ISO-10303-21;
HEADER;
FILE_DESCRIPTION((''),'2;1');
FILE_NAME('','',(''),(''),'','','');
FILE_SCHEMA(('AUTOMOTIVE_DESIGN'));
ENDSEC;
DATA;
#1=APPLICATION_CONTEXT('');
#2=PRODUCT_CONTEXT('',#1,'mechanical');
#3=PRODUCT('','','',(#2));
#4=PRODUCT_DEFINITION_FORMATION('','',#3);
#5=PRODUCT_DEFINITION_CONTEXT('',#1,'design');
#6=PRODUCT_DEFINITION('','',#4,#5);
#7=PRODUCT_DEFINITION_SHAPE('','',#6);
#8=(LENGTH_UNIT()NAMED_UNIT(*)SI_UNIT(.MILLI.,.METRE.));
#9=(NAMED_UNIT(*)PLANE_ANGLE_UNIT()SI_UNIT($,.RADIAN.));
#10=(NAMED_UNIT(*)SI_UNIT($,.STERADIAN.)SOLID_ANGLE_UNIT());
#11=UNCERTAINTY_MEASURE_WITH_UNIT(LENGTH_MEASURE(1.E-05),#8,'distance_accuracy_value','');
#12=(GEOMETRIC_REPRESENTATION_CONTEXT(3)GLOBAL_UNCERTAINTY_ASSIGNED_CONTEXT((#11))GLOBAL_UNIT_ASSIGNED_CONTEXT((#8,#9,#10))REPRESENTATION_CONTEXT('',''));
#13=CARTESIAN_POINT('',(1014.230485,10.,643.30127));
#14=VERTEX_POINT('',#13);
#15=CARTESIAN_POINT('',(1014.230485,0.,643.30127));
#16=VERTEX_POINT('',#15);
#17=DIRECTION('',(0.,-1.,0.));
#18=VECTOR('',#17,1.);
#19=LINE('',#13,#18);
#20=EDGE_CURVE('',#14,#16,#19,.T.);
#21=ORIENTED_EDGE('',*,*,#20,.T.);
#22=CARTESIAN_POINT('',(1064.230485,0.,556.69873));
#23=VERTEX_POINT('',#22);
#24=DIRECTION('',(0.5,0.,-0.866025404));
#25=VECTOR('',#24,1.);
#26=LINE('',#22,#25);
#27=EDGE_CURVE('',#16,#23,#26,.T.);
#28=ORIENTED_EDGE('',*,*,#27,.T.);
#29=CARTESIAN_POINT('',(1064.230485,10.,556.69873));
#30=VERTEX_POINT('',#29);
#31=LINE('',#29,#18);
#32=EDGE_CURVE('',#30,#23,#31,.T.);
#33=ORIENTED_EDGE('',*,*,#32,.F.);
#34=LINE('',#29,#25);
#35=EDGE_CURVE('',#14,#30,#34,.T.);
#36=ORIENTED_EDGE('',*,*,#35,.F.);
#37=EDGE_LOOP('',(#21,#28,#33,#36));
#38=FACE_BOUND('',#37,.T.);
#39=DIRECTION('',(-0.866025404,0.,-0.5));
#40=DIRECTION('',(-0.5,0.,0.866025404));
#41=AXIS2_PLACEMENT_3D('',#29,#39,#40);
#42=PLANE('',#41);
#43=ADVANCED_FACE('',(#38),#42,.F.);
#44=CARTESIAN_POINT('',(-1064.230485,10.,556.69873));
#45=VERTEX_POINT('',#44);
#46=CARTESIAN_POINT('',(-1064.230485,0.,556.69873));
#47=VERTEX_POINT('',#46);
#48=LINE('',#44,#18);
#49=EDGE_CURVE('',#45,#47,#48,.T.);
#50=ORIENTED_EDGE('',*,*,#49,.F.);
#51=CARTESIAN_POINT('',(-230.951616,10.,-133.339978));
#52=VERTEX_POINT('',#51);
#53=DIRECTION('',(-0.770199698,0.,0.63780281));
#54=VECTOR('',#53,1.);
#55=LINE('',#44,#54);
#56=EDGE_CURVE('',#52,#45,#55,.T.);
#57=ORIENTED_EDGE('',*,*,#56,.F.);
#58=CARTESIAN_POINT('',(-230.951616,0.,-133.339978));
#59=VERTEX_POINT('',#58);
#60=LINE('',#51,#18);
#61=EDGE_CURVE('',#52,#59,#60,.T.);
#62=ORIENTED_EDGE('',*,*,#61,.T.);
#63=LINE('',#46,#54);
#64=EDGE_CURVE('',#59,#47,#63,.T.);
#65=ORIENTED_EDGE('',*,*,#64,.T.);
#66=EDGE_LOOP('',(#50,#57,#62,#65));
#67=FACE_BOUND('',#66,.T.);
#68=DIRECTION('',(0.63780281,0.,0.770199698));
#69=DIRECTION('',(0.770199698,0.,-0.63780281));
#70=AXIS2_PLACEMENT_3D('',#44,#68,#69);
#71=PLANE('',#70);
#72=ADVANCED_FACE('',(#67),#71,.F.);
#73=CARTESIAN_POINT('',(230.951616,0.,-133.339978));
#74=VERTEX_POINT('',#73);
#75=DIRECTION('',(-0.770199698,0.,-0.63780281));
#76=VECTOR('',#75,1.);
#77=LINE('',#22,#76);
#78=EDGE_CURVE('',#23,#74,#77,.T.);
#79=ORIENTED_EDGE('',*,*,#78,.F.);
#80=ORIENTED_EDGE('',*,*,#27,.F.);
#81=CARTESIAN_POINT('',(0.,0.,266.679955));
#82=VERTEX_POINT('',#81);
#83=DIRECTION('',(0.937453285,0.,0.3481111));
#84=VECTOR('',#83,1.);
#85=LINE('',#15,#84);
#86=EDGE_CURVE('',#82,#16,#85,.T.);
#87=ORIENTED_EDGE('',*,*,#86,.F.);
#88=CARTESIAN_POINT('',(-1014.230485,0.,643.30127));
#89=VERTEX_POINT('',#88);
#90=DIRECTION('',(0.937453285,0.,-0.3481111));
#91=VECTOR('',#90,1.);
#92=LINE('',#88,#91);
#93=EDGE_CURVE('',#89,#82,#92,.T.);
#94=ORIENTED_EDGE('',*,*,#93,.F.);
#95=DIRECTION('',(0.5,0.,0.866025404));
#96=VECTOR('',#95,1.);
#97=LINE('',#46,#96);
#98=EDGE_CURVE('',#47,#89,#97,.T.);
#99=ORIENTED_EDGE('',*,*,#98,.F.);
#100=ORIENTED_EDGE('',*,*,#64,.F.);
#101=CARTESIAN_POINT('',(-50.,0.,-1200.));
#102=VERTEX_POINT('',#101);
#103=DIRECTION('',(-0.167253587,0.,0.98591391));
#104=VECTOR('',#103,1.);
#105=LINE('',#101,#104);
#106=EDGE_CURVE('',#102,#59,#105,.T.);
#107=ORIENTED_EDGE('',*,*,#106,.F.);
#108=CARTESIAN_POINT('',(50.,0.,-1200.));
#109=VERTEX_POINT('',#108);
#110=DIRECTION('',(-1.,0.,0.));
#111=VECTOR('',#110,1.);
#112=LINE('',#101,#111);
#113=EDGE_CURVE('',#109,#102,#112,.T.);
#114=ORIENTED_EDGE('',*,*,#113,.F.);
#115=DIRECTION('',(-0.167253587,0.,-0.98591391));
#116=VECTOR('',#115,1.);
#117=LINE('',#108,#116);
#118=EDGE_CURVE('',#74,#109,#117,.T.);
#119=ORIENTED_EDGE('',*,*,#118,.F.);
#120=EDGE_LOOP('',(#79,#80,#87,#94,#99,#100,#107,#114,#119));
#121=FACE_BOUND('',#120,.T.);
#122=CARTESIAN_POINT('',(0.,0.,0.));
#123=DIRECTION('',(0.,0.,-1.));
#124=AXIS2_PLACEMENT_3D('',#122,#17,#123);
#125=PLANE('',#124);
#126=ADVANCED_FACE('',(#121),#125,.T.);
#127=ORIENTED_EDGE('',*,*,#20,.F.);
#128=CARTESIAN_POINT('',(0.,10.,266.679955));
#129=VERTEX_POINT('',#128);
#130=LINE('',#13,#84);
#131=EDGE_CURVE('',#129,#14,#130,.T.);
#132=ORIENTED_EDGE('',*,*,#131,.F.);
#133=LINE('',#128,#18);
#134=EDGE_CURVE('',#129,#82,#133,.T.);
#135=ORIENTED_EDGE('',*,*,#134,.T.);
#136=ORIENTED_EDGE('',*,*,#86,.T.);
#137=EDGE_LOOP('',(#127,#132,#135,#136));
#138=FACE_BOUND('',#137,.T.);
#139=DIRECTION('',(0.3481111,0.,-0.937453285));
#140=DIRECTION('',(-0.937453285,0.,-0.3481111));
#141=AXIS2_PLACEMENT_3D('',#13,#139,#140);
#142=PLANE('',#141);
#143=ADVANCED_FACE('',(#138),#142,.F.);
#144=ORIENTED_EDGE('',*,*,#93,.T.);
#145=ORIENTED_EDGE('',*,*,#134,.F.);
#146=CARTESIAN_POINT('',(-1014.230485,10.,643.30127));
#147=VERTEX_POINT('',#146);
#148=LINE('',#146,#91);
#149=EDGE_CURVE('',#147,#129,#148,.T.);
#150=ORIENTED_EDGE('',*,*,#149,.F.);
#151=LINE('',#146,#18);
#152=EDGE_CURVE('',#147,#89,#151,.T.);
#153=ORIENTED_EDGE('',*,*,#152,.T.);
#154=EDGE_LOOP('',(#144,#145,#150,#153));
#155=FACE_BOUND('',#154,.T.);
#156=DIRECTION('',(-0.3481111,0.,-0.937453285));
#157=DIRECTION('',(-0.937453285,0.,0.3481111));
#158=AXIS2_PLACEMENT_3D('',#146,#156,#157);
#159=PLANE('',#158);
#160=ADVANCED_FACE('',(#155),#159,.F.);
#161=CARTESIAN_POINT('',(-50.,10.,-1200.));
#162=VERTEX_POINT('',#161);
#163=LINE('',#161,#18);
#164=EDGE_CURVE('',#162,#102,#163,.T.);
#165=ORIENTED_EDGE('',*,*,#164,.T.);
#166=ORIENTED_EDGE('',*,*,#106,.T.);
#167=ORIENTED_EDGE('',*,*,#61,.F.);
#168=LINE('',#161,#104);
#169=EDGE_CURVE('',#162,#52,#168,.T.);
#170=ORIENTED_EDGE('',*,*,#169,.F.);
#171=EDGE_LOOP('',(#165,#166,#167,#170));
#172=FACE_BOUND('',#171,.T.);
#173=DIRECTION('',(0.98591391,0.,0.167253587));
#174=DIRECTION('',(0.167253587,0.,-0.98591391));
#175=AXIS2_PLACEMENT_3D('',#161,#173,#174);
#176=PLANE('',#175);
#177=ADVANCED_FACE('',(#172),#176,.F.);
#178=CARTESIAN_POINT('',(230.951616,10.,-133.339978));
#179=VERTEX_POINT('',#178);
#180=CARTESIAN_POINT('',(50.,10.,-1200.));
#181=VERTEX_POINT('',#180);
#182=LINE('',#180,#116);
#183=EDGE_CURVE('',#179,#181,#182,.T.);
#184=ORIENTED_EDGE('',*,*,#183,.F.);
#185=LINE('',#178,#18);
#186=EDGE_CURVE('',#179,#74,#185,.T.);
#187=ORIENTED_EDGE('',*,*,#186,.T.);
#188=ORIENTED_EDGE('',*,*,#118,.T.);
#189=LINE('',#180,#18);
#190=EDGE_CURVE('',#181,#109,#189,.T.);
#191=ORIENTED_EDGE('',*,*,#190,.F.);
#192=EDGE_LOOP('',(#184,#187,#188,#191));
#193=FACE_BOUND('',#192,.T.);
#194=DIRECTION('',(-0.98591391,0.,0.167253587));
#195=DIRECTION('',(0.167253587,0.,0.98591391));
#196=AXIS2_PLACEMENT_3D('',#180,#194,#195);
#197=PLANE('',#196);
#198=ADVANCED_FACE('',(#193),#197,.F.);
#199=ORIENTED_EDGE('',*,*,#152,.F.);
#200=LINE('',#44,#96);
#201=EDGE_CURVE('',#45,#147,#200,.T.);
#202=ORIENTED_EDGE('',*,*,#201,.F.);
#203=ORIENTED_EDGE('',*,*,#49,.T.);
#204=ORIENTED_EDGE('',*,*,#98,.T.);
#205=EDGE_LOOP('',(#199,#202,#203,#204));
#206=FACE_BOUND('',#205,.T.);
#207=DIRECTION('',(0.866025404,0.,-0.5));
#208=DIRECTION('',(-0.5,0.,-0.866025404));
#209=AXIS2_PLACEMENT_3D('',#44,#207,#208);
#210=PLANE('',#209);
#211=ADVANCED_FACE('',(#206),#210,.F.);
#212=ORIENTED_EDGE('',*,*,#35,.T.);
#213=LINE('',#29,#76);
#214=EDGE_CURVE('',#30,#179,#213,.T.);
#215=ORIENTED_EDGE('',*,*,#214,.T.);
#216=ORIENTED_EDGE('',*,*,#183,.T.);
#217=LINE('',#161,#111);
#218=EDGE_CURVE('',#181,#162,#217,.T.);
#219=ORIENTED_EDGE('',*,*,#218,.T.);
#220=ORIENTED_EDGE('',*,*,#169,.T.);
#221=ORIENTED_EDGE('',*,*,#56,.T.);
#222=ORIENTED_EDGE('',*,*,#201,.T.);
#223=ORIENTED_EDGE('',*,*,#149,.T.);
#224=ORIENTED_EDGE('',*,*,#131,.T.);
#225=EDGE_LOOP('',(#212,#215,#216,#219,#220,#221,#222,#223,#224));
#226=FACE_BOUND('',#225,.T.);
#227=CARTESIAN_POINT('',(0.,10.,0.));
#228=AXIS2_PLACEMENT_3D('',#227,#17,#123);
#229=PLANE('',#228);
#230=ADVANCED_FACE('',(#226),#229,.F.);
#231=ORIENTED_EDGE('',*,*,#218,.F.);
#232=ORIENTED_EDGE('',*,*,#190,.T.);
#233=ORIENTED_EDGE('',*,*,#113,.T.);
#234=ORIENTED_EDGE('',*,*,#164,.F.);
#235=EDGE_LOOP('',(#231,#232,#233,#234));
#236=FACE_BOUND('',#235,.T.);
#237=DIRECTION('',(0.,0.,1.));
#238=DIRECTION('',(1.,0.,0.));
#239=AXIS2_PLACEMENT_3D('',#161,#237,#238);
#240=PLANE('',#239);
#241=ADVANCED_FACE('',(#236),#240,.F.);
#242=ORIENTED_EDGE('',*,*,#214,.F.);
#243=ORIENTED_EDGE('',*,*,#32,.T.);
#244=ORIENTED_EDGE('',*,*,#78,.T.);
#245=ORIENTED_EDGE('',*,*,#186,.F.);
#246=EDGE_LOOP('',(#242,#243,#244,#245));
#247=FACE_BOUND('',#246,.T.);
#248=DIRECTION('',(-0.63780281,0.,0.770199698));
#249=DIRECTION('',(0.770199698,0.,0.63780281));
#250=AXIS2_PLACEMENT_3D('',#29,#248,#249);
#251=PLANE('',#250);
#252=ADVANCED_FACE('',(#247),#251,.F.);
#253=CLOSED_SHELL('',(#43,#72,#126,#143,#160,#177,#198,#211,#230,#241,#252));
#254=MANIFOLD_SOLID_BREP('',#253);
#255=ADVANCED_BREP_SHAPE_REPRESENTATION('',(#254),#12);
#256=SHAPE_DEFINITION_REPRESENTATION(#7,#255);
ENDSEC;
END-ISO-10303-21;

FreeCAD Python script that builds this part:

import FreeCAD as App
import Part
import Sketcher

V = App.Vector
Q = App.Units.Quantity


def add_polygon(sketch, points):
    """Adds a closed chain of lines whose ends are joined by coincident constraints."""
    first, n = sketch.GeometryCount, len(points)
    for a, b in zip(points, points[1:] + points[:1]):
        sketch.addGeometry(Part.LineSegment(App.Vector(*a, 0), App.Vector(*b, 0)), False)
    for i in range(n):
        sketch.addConstraint(Sketcher.Constraint("Coincident", first + i, 2, first + (i + 1) % n, 1))

doc = App.newDocument("Part")
body = doc.addObject("PartDesign::Body", "Body")

# Sketch on XZ plane
sketch1 = body.newObject("Sketcher::SketchObject", "Sketch")
sketch1.AttachmentSupport = (doc.getObject("XZ_Plane"), [""])
sketch1.MapMode = "FlatFace"
add_polygon(sketch1, [(1064, 557), (231, -133), (50, -1200), (-50, -1200), (-231, -133), (-1064, 557), (-1014, 643), (0, 267), (1014, 643)])  # lines 0-8
sketch1.addConstraint(Sketcher.Constraint("Horizontal", 2))
sketch1.addConstraint(Sketcher.Constraint("Symmetric", 0, 2, 3, 2, -2))
sketch1.addConstraint(Sketcher.Constraint("Symmetric", 5, 2, 7, 2, -2))
sketch1.addConstraint(Sketcher.Constraint("Symmetric", 4, 2, 8, 2, -2))
sketch1.addConstraint(Sketcher.Constraint("PointOnObject", 6, 2, -2))
sketch1.addConstraint(Sketcher.Constraint("Equal", 0, 1))
sketch1.addConstraint(Sketcher.Constraint("Equal", 1, 3))
sketch1.addConstraint(Sketcher.Constraint("Equal", 4, 6))
sketch1.addConstraint(Sketcher.Constraint("DistanceX", 2, 2, 2, 1, 100.0))
sketch1.addConstraint(Sketcher.Constraint("Angle", 5, Q("60 deg")))
sketch1.addConstraint(Sketcher.Constraint("Distance", 5, 100.0))
sketch1.addConstraint(Sketcher.Constraint("DistanceY", 1, 2, -1, 1, 1200.0))
sketch1.addConstraint(Sketcher.Constraint("DistanceX", 4, 2, 0, 2, 1295.1821))
sketch1.addConstraint(Sketcher.Constraint("Distance", 0, 1081.89976))
sketch1.addConstraint(Sketcher.Constraint("DistanceY", -1, 1, 4, 2, 556.69873))
pad1 = body.newObject("PartDesign::Pad", "Pad")
pad1.Profile = sketch1
pad1.Length = 10
pad1.Reversed = True

doc.recompute()
